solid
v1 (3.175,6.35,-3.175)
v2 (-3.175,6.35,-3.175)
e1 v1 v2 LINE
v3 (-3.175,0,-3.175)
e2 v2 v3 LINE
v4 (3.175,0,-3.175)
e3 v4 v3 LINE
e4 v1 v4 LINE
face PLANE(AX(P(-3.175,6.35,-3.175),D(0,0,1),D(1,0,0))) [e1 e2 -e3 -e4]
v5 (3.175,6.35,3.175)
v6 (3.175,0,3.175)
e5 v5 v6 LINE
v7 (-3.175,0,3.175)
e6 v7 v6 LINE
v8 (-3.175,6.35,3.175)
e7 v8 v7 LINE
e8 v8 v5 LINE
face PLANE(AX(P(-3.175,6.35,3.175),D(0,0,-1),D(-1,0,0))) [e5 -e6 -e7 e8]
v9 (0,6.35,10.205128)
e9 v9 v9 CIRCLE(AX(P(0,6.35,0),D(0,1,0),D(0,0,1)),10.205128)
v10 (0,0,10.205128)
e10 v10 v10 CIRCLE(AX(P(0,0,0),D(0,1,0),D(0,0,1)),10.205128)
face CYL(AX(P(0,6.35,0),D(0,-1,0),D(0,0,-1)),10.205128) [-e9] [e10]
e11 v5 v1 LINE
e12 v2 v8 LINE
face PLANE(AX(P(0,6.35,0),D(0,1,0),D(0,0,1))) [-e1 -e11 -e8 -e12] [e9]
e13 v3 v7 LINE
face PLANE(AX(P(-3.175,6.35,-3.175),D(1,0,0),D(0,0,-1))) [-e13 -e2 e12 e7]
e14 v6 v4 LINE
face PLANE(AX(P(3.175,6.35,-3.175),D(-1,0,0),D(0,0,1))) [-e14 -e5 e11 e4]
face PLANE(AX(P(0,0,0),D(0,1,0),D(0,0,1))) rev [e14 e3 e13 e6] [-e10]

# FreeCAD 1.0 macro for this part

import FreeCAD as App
import Part
import Sketcher
Q = App.Units.Quantity

doc = App.newDocument("Part")
body = doc.addObject("PartDesign::Body", "Body")

# Sketch on XZ plane
sketch1 = body.newObject("Sketcher::SketchObject", "Sketch")
sketch1.AttachmentSupport = (doc.getObject("XZ_Plane"), [""])
sketch1.MapMode = "FlatFace"
sketch1.addGeometry([
    Part.Circle(App.Vector(0, 0, 0), App.Vector(0, 0, 1), 10),  # 0
    Part.LineSegment(App.Vector(3, 3, 0), App.Vector(-3, 3, 0)),  # 1
    Part.LineSegment(App.Vector(-3, 3, 0), App.Vector(-3, -3, 0)),  # 2
    Part.LineSegment(App.Vector(-3, -3, 0), App.Vector(3, -3, 0)),  # 3
    Part.LineSegment(App.Vector(3, -3, 0), App.Vector(3, 3, 0)),  # 4
], False)
sketch1.addConstraint([
    Sketcher.Constraint("Coincident", 1, 2, 2, 1),
    Sketcher.Constraint("Coincident", 2, 2, 3, 1),
    Sketcher.Constraint("Coincident", 3, 2, 4, 1),
    Sketcher.Constraint("Coincident", 4, 2, 1, 1),
    Sketcher.Constraint("Horizontal", 1),
    Sketcher.Constraint("Vertical", 2),
    Sketcher.Constraint("Horizontal", 3),
    Sketcher.Constraint("Vertical", 4),
    Sketcher.Constraint("Coincident", 0, 3, -1, 1),
    Sketcher.Constraint("Symmetric", 1, 2, 3, 2, -1, 1),
    Sketcher.Constraint("Equal", 3, 2),
    Sketcher.Constraint("DistanceX", 1, 2, 1, 1, Q("0.25 in")),
    Sketcher.Constraint("Diameter", 0, 20.410256),
])
pad1 = body.newObject("PartDesign::Pad", "Pad")
pad1.Profile = sketch1
pad1.Length = Q("0.25 in")
pad1.Reversed = True

doc.recompute()
